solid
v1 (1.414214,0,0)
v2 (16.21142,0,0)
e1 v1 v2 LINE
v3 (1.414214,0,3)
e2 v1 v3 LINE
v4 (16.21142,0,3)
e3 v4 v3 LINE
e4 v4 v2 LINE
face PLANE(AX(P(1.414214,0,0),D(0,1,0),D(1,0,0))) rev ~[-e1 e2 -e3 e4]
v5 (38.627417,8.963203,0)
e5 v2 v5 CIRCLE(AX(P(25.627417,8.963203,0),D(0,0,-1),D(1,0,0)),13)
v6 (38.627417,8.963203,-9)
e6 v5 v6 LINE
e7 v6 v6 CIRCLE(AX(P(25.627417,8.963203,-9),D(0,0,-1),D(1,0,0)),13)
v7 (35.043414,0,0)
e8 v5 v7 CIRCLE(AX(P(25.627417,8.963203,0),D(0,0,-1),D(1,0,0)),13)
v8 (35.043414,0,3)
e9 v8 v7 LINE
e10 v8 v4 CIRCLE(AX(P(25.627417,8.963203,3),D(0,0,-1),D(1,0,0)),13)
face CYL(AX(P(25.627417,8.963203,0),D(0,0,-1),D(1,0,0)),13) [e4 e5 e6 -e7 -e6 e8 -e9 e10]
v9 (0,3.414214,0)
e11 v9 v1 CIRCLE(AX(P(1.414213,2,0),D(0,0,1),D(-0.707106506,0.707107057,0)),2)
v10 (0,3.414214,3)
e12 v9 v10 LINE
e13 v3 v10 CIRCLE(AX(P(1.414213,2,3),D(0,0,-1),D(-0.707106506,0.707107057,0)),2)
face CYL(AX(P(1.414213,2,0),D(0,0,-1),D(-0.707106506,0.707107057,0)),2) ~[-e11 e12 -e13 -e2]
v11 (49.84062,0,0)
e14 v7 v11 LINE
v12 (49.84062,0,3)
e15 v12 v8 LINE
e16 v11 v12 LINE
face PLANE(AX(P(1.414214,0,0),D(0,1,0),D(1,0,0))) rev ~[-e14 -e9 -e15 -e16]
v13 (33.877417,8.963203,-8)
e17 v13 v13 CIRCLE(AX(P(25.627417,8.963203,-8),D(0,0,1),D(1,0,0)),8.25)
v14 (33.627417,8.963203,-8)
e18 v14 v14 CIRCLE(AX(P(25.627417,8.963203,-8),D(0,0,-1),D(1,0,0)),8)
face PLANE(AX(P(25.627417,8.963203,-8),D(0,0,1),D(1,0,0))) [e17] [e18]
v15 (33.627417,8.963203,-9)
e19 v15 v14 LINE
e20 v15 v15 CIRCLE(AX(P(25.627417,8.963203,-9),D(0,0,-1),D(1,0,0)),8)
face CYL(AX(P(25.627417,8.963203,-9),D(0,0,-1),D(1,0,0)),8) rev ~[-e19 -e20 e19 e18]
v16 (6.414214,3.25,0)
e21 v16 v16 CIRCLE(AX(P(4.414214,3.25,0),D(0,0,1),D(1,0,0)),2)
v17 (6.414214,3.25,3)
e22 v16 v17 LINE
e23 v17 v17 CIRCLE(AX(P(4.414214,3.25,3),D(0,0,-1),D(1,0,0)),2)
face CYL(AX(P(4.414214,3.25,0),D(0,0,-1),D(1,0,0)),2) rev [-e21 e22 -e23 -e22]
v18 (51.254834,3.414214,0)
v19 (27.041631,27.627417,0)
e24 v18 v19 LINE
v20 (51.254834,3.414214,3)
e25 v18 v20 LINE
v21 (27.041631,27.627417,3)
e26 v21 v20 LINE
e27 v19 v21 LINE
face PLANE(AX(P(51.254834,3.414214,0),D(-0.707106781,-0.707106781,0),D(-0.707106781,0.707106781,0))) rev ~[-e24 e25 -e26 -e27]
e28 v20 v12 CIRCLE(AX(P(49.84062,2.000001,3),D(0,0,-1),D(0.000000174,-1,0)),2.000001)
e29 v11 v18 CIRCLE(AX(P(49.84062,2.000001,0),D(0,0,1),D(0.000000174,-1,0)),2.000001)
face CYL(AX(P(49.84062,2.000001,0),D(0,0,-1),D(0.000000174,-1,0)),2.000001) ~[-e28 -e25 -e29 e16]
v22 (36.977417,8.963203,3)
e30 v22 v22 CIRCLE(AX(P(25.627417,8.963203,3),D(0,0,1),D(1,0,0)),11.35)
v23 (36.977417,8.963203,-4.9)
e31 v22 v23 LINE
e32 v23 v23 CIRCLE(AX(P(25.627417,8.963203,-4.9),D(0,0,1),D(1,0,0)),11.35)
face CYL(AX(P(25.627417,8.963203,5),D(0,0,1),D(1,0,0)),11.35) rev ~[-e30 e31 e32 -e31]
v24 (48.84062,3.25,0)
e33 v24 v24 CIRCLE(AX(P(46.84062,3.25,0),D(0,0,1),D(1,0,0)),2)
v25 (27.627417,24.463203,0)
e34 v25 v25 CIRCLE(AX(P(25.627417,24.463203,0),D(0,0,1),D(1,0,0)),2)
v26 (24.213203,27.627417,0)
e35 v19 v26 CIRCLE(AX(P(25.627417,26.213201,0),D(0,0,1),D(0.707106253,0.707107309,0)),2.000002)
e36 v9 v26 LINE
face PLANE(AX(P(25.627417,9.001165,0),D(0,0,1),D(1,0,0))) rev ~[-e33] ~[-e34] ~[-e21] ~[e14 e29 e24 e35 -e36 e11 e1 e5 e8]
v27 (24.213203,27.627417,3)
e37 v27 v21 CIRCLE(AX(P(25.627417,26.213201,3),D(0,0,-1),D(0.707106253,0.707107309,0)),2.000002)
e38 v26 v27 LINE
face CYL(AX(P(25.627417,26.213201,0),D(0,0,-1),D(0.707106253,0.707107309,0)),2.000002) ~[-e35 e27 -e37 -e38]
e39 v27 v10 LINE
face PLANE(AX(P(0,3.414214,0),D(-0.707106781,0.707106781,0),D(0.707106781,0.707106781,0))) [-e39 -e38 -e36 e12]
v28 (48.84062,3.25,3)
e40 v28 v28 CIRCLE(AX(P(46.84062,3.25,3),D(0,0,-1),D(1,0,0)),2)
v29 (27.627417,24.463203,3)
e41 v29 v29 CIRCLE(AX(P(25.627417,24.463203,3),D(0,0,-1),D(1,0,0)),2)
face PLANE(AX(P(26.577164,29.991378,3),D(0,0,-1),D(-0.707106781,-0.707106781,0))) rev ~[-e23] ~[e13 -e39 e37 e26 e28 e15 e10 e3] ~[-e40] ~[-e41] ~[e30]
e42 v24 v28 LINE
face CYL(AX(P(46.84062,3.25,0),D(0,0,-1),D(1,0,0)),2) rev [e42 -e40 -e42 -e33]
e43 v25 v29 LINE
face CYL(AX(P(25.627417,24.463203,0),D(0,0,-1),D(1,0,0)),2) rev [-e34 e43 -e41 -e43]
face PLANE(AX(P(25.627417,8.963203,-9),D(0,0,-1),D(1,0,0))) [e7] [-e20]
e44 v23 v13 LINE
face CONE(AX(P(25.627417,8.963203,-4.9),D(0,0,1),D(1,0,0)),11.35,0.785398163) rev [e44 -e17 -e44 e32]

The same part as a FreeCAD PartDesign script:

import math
import FreeCAD as App
import Part
import Sketcher


def edges_at(feature, points):
    """Names of the edges that pass closest to the given points."""
    edges = feature.Shape.Edges
    near = lambda p: min(range(len(edges)), key=lambda i: edges[i].distToShape(Part.Vertex(*p))[0])
    return sorted({f"Edge{near(p) + 1}" for p in points})

doc = App.newDocument("Part")
body = doc.addObject("PartDesign::Body", "Body")

sketch1 = body.newObject("Sketcher::SketchObject", "Sketch")
sketch1.AttachmentSupport = (doc.getObject("XY_Plane"), [""])
sketch1.MapMode = "FlatFace"
sketch1.addGeometry(Part.LineSegment(App.Vector(1.4, 0, 0), App.Vector(49.8, 0, 0)), False)
sketch1.addGeometry(Part.ArcOfCircle(Part.Circle(App.Vector(49.8, 2, 0), App.Vector(0, 0, 1), 2), math.radians(-90), math.radians(45)), False)
sketch1.addGeometry(Part.LineSegment(App.Vector(51.3, 3.4, 0), App.Vector(27, 27.6, 0)), False)
sketch1.addGeometry(Part.ArcOfCircle(Part.Circle(App.Vector(25.6, 26.2, 0), App.Vector(0, 0, 1), 2), math.radians(45), math.radians(135)), False)
sketch1.addGeometry(Part.LineSegment(App.Vector(24.2, 27.6, 0), App.Vector(0, 3.4, 0)), False)
sketch1.addGeometry(Part.ArcOfCircle(Part.Circle(App.Vector(1.4, 2, 0), App.Vector(0, 0, 1), 2), math.radians(135), math.radians(270)), False)
sketch1.addGeometry(Part.Circle(App.Vector(4.4, 3.2, 0), App.Vector(0, 0, 1), 2), False)
sketch1.addGeometry(Part.Circle(App.Vector(46.8, 3.2, 0), App.Vector(0, 0, 1), 2), False)
sketch1.addGeometry(Part.Circle(App.Vector(25.6, 24.5, 0), App.Vector(0, 0, 1), 2), False)
sketch1.addConstraint(Sketcher.Constraint("Tangent", 0, 2, 1, 1))
sketch1.addConstraint(Sketcher.Constraint("Tangent", 1, 2, 2, 1))
sketch1.addConstraint(Sketcher.Constraint("Tangent", 2, 2, 3, 1))
sketch1.addConstraint(Sketcher.Constraint("Tangent", 3, 2, 4, 1))
sketch1.addConstraint(Sketcher.Constraint("Tangent", 4, 2, 5, 1))
sketch1.addConstraint(Sketcher.Constraint("Tangent", 5, 2, 0, 1))
sketch1.addConstraint(Sketcher.Constraint("Horizontal", 0))
sketch1.addConstraint(Sketcher.Constraint("Equal", 1, 3))
sketch1.addConstraint(Sketcher.Constraint("Equal", 1, 5))
sketch1.addConstraint(Sketcher.Constraint("Equal", 5, 6))
sketch1.addConstraint(Sketcher.Constraint("Equal", 6, 7))
sketch1.addConstraint(Sketcher.Constraint("Equal", 7, 8))
sketch1.addConstraint(Sketcher.Constraint("PointOnObject", 0, 2, -1))
sketch1.addConstraint(Sketcher.Constraint("PointOnObject", 4, 2, -2))
sketch1.addConstraint(Sketcher.Constraint("Perpendicular", 2, 4))
sketch1.addConstraint(Sketcher.Constraint("Horizontal", 6, 3, 7, 3))
sketch1.addConstraint(Sketcher.Constraint("Horizontal", 2, 2, 3, 2))
sketch1.addConstraint(Sketcher.Constraint("Vertical", 3, 3, 8, 3))
sketch1.addConstraint(Sketcher.Constraint("Diameter", 6, 4.0))
sketch1.addConstraint(Sketcher.Constraint("DistanceX", 5, 3, 6, 3, 3.000001))
sketch1.addConstraint(Sketcher.Constraint("DistanceX", 7, 3, 1, 3, 3.0))
sketch1.addConstraint(Sketcher.Constraint("DistanceY", -1, 1, 6, 3, 3.25))
sketch1.addConstraint(Sketcher.Constraint("DistanceY", -1, 1, 3, 3, 26.213201))
sketch1.addConstraint(Sketcher.Constraint("DistanceY", 1, 2, 8, 3, 21.048989))
pad1 = body.newObject("PartDesign::Pad", "Pad")
pad1.Profile = sketch1
pad1.Length = 5

sketch2 = body.newObject("Sketcher::SketchObject", "Sketch001")
sketch2.AttachmentSupport = (doc.getObject("XY_Plane"), [""])
sketch2.MapMode = "FlatFace"
sketch2.addGeometry(Part.Circle(App.Vector(26, 9, 0), App.Vector(0, 0, 1), 13), False)
sketch2.addConstraint(Sketcher.Constraint("Diameter", 0, 26.0))
sketch2.addConstraint(Sketcher.Constraint("DistanceX", -1, 1, 0, 3, 25.627417))
sketch2.addConstraint(Sketcher.Constraint("DistanceY", -1, 1, 0, 3, 8.963203))
pad2 = body.newObject("PartDesign::Pad", "Pad001")
pad2.Profile = sketch2
pad2.Length = 18
pad2.Midplane = True

sketch3 = body.newObject("Sketcher::SketchObject", "Sketch002")
sketch3.AttachmentSupport = (doc.getObject("XY_Plane"), [""])
sketch3.MapMode = "FlatFace"
sketch3.AttachmentOffset = App.Placement(App.Vector(0, 0, -9), App.Rotation())
sketch3.addGeometry(Part.Circle(App.Vector(26, 9, 0), App.Vector(0, 0, 1), 8), False)
sketch3.addConstraint(Sketcher.Constraint("Diameter", 0, 16.0))
sketch3.addConstraint(Sketcher.Constraint("DistanceX", -1, 1, 0, 3, 25.627417))
sketch3.addConstraint(Sketcher.Constraint("DistanceY", -1, 1, 0, 3, 8.963203))
pocket1 = body.newObject("PartDesign::Pocket", "Pocket")
pocket1.Profile = sketch3
pocket1.Type = "ThroughAll"
pocket1.Reversed = True

sketch4 = body.newObject("Sketcher::SketchObject", "Sketch003")
sketch4.Placement = App.Placement(App.Vector(27.334524, 27.334524, 0), App.Rotation(App.Vector(-0.707106781, 0.707106781, 0), App.Vector(0, 0, 0.999999999), App.Vector(0.707106781, 0.707106781, 0), "ZXY"))
sketch4.addGeometry(Part.LineSegment(App.Vector(-33.8, 10, 0), App.Vector(-33.8, 5, 0)), False)
sketch4.addGeometry(Part.LineSegment(App.Vector(-33.8, 5, 0), App.Vector(3.4, 5, 0)), False)
sketch4.addGeometry(Part.LineSegment(App.Vector(3.4, 5, 0), App.Vector(3.4, 10, 0)), False)
sketch4.addGeometry(Part.LineSegment(App.Vector(3.4, 10, 0), App.Vector(-33.8, 10, 0)), False)
sketch4.addConstraint(Sketcher.Constraint("Coincident", 0, 2, 1, 1))
sketch4.addConstraint(Sketcher.Constraint("Coincident", 1, 2, 2, 1))
sketch4.addConstraint(Sketcher.Constraint("Coincident", 2, 2, 3, 1))
sketch4.addConstraint(Sketcher.Constraint("Coincident", 3, 2, 0, 1))
sketch4.addConstraint(Sketcher.Constraint("Vertical", 0))
sketch4.addConstraint(Sketcher.Constraint("Horizontal", 1))
sketch4.addConstraint(Sketcher.Constraint("Vertical", 2))
sketch4.addConstraint(Sketcher.Constraint("Horizontal", 3))
sketch4.addConstraint(Sketcher.Constraint("DistanceY", 0, 2, 0, 1, 5.0))
sketch4.addConstraint(Sketcher.Constraint("DistanceY", -1, 1, 0, 2, 5.0))
sketch4.addConstraint(Sketcher.Constraint("DistanceX", 1, 1, 1, 2, 37.242641))
sketch4.addConstraint(Sketcher.Constraint("DistanceX", 0, 2, -1, 1, 33.828426))
pocket2 = body.newObject("PartDesign::Pocket", "Pocket001")
pocket2.Profile = sketch4
pocket2.Type = "ThroughAll"

sketch5 = body.newObject("Sketcher::SketchObject", "Sketch004")
sketch5.AttachmentSupport = (doc.getObject("XY_Plane"), [""])
sketch5.MapMode = "FlatFace"
sketch5.AttachmentOffset = App.Placement(App.Vector(0, 0, 5), App.Rotation())
sketch5.addGeometry(Part.Circle(App.Vector(26, 9, 0), App.Vector(0, 0, 1), 11), False)
sketch5.addConstraint(Sketcher.Constraint("Diameter", 0, 22.7))
sketch5.addConstraint(Sketcher.Constraint("DistanceX", -1, 1, 0, 3, 25.627417))
sketch5.addConstraint(Sketcher.Constraint("DistanceY", -1, 1, 0, 3, 8.963203))
pocket3 = body.newObject("PartDesign::Pocket", "Pocket002")
pocket3.Profile = sketch5
pocket3.Length = 13
doc.recompute()

chamfer = body.newObject("PartDesign::Chamfer", "Chamfer")
chamfer.Base = (pocket3, edges_at(pocket3, [(14.277, 8.963, -8)]))
chamfer.Size = 3.1

sketch6 = body.newObject("Sketcher::SketchObject", "Sketch005")
sketch6.Placement = App.Placement(App.Vector(-1.707107, 1.707107, 0), App.Rotation(App.Vector(-0.707106781, -0.707106781, 0), App.Vector(0, 0, 0.999999999), App.Vector(-0.707106781, 0.707106781, 0), "ZXY"))
sketch6.addGeometry(Part.LineSegment(App.Vector(-40, 7, 0), App.Vector(-40, 3, 0)), False)
sketch6.addGeometry(Part.LineSegment(App.Vector(-40, 3, 0), App.Vector(0, 3, 0)), False)
sketch6.addGeometry(Part.LineSegment(App.Vector(0, 3, 0), App.Vector(0, 7, 0)), False)
sketch6.addGeometry(Part.LineSegment(App.Vector(0, 7, 0), App.Vector(-40, 7, 0)), False)
sketch6.addConstraint(Sketcher.Constraint("Coincident", 0, 2, 1, 1))
sketch6.addConstraint(Sketcher.Constraint("Coincident", 1, 2, 2, 1))
sketch6.addConstraint(Sketcher.Constraint("Coincident", 2, 2, 3, 1))
sketch6.addConstraint(Sketcher.Constraint("Coincident", 3, 2, 0, 1))
sketch6.addConstraint(Sketcher.Constraint("Vertical", 0))
sketch6.addConstraint(Sketcher.Constraint("Horizontal", 1))
sketch6.addConstraint(Sketcher.Constraint("Vertical", 2))
sketch6.addConstraint(Sketcher.Constraint("Horizontal", 3))
sketch6.addConstraint(Sketcher.Constraint("PointOnObject", 1, 2, -2))
sketch6.addConstraint(Sketcher.Constraint("DistanceX", 1, 1, 1, 2, 40.0))
sketch6.addConstraint(Sketcher.Constraint("DistanceY", 0, 2, 0, 1, 4.0))
sketch6.addConstraint(Sketcher.Constraint("DistanceY", -1, 1, 0, 2, 3.0))
pocket4 = body.newObject("PartDesign::Pocket", "Pocket003")
pocket4.Profile = sketch6
pocket4.Type = "ThroughAll"

doc.recompute()
